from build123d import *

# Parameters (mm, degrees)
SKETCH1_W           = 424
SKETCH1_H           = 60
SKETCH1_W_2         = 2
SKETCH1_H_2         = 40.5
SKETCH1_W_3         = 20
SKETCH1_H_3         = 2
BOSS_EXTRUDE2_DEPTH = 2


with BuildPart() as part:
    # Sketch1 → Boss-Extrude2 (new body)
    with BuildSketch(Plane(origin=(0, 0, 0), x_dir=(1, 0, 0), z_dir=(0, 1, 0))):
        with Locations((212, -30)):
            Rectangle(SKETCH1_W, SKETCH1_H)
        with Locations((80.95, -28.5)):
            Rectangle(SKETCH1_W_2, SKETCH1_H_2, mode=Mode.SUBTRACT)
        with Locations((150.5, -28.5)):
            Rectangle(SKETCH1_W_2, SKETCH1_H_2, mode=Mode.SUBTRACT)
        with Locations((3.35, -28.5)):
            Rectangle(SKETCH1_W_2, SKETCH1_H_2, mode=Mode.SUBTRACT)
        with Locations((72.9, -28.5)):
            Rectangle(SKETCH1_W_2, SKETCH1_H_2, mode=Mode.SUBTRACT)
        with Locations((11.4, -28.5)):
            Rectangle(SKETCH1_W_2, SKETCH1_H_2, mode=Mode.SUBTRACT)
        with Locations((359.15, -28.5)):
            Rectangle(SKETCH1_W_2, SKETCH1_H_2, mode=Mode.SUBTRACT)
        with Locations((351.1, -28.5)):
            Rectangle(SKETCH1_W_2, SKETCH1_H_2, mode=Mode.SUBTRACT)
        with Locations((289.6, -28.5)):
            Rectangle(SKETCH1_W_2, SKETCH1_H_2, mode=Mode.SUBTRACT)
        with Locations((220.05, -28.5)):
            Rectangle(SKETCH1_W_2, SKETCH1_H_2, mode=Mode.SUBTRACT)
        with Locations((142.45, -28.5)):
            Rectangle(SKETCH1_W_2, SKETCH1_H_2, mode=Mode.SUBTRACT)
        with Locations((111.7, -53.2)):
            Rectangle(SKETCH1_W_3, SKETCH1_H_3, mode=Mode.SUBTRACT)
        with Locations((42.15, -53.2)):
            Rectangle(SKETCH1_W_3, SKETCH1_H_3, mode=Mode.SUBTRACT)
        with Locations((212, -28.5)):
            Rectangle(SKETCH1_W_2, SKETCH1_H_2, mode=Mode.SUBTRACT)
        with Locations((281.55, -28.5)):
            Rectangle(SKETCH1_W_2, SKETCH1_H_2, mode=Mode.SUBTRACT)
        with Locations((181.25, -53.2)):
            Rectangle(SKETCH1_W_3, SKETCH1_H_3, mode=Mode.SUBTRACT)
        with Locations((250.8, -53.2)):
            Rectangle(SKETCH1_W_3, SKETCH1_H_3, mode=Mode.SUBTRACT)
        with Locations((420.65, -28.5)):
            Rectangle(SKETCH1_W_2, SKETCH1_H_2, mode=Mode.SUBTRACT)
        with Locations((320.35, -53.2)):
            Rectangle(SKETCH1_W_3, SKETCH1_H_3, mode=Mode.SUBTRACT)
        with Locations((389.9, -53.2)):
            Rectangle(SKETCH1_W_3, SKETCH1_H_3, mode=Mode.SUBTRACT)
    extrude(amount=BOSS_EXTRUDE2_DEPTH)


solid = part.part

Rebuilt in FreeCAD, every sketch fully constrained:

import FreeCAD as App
import Part
import Sketcher

V = App.Vector


def add_polygon(sketch, points):
    """Adds a closed chain of lines whose ends are joined by coincident constraints."""
    first, n = sketch.GeometryCount, len(points)
    for a, b in zip(points, points[1:] + points[:1]):
        sketch.addGeometry(Part.LineSegment(App.Vector(*a, 0), App.Vector(*b, 0)), False)
    for i in range(n):
        sketch.addConstraint(Sketcher.Constraint("Coincident", first + i, 2, first + (i + 1) % n, 1))

doc = App.newDocument("Part")
body = doc.addObject("PartDesign::Body", "Body")

# Sketch on XZ plane
sketch1 = body.newObject("Sketcher::SketchObject", "Sketch")
sketch1.AttachmentSupport = (doc.getObject("XZ_Plane"), [""])
sketch1.MapMode = "FlatFace"
add_polygon(sketch1, [(0, 0), (0, 60), (424, 60), (424, 0)])  # lines 0-3
add_polygon(sketch1, [(52.1, 54.2), (32.1, 54.2), (32.1, 52.2), (52.1, 52.2)])  # lines 4-7
add_polygon(sketch1, [(121.7, 54.2), (101.7, 54.2), (101.7, 52.2), (121.7, 52.2)])  # lines 8-11
add_polygon(sketch1, [(191.2, 54.2), (171.2, 54.2), (171.2, 52.2), (191.2, 52.2)])  # lines 12-15
add_polygon(sketch1, [(260.8, 54.2), (240.8, 54.2), (240.8, 52.2), (260.8, 52.2)])  # lines 16-19
add_polygon(sketch1, [(330.4, 54.2), (310.4, 54.2), (310.4, 52.2), (330.4, 52.2)])  # lines 20-23
add_polygon(sketch1, [(399.9, 54.2), (379.9, 54.2), (379.9, 52.2), (399.9, 52.2)])  # lines 24-27
add_polygon(sketch1, [(4.3, 48.8), (2.4, 48.8), (2.4, 8.2), (4.3, 8.2)])  # lines 28-31
add_polygon(sketch1, [(12.4, 48.8), (10.4, 48.8), (10.4, 8.2), (12.4, 8.2)])  # lines 32-35
add_polygon(sketch1, [(73.9, 48.8), (71.9, 48.8), (71.9, 8.2), (73.9, 8.2)])  # lines 36-39
add_polygon(sketch1, [(82, 48.8), (80, 48.8), (80, 8.2), (82, 8.2)])  # lines 40-43
add_polygon(sketch1, [(143.4, 48.8), (141.4, 48.8), (141.4, 8.2), (143.4, 8.2)])  # lines 44-47
add_polygon(sketch1, [(151.5, 48.8), (149.5, 48.8), (149.5, 8.2), (151.5, 8.2)])  # lines 48-51
add_polygon(sketch1, [(213, 48.8), (211, 48.8), (211, 8.2), (213, 8.2)])  # lines 52-55
add_polygon(sketch1, [(221.1, 48.8), (219.1, 48.8), (219.1, 8.2), (221.1, 8.2)])  # lines 56-59
add_polygon(sketch1, [(282.6, 48.8), (280.6, 48.8), (280.6, 8.2), (282.6, 8.2)])  # lines 60-63
add_polygon(sketch1, [(290.6, 48.8), (288.6, 48.8), (288.6, 8.2), (290.6, 8.2)])  # lines 64-67
add_polygon(sketch1, [(352.1, 48.8), (350.1, 48.8), (350.1, 8.2), (352.1, 8.2)])  # lines 68-71
add_polygon(sketch1, [(360.1, 48.8), (358.1, 48.8), (358.1, 8.2), (360.1, 8.2)])  # lines 72-75
add_polygon(sketch1, [(421.6, 48.8), (419.6, 48.8), (419.6, 8.2), (421.6, 8.2)])  # lines 76-79
sketch1.addConstraint(Sketcher.Constraint("Vertical", 0))
sketch1.addConstraint(Sketcher.Constraint("Horizontal", 1))
sketch1.addConstraint(Sketcher.Constraint("Vertical", 2))
sketch1.addConstraint(Sketcher.Constraint("Horizontal", 3))
sketch1.addConstraint(Sketcher.Constraint("Horizontal", 4))
sketch1.addConstraint(Sketcher.Constraint("Vertical", 5))
sketch1.addConstraint(Sketcher.Constraint("Horizontal", 6))
sketch1.addConstraint(Sketcher.Constraint("Vertical", 7))
sketch1.addConstraint(Sketcher.Constraint("Horizontal", 8))
sketch1.addConstraint(Sketcher.Constraint("Vertical", 9))
sketch1.addConstraint(Sketcher.Constraint("Horizontal", 10))
sketch1.addConstraint(Sketcher.Constraint("Vertical", 11))
sketch1.addConstraint(Sketcher.Constraint("Horizontal", 12))
sketch1.addConstraint(Sketcher.Constraint("Vertical", 13))
sketch1.addConstraint(Sketcher.Constraint("Horizontal", 14))
sketch1.addConstraint(Sketcher.Constraint("Vertical", 15))
sketch1.addConstraint(Sketcher.Constraint("Horizontal", 16))
sketch1.addConstraint(Sketcher.Constraint("Vertical", 17))
sketch1.addConstraint(Sketcher.Constraint("Horizontal", 18))
sketch1.addConstraint(Sketcher.Constraint("Vertical", 19))
sketch1.addConstraint(Sketcher.Constraint("Horizontal", 20))
sketch1.addConstraint(Sketcher.Constraint("Vertical", 21))
sketch1.addConstraint(Sketcher.Constraint("Horizontal", 22))
sketch1.addConstraint(Sketcher.Constraint("Vertical", 23))
sketch1.addConstraint(Sketcher.Constraint("Horizontal", 24))
sketch1.addConstraint(Sketcher.Constraint("Vertical", 25))
sketch1.addConstraint(Sketcher.Constraint("Horizontal", 26))
sketch1.addConstraint(Sketcher.Constraint("Vertical", 27))
sketch1.addConstraint(Sketcher.Constraint("Horizontal", 28))
sketch1.addConstraint(Sketcher.Constraint("Vertical", 29))
sketch1.addConstraint(Sketcher.Constraint("Horizontal", 30))
sketch1.addConstraint(Sketcher.Constraint("Vertical", 31))
sketch1.addConstraint(Sketcher.Constraint("Horizontal", 32))
sketch1.addConstraint(Sketcher.Constraint("Vertical", 33))
sketch1.addConstraint(Sketcher.Constraint("Horizontal", 34))
sketch1.addConstraint(Sketcher.Constraint("Vertical", 35))
sketch1.addConstraint(Sketcher.Constraint("Horizontal", 36))
sketch1.addConstraint(Sketcher.Constraint("Vertical", 37))
sketch1.addConstraint(Sketcher.Constraint("Horizontal", 38))
sketch1.addConstraint(Sketcher.Constraint("Vertical", 39))
sketch1.addConstraint(Sketcher.Constraint("Horizontal", 40))
sketch1.addConstraint(Sketcher.Constraint("Vertical", 41))
sketch1.addConstraint(Sketcher.Constraint("Horizontal", 42))
sketch1.addConstraint(Sketcher.Constraint("Vertical", 43))
sketch1.addConstraint(Sketcher.Constraint("Horizontal", 44))
sketch1.addConstraint(Sketcher.Constraint("Vertical", 45))
sketch1.addConstraint(Sketcher.Constraint("Horizontal", 46))
sketch1.addConstraint(Sketcher.Constraint("Vertical", 47))
sketch1.addConstraint(Sketcher.Constraint("Horizontal", 48))
sketch1.addConstraint(Sketcher.Constraint("Vertical", 49))
sketch1.addConstraint(Sketcher.Constraint("Horizontal", 50))
sketch1.addConstraint(Sketcher.Constraint("Vertical", 51))
sketch1.addConstraint(Sketcher.Constraint("Horizontal", 52))
sketch1.addConstraint(Sketcher.Constraint("Vertical", 53))
sketch1.addConstraint(Sketcher.Constraint("Horizontal", 54))
sketch1.addConstraint(Sketcher.Constraint("Vertical", 55))
sketch1.addConstraint(Sketcher.Constraint("Horizontal", 56))
sketch1.addConstraint(Sketcher.Constraint("Vertical", 57))
sketch1.addConstraint(Sketcher.Constraint("Horizontal", 58))
sketch1.addConstraint(Sketcher.Constraint("Vertical", 59))
sketch1.addConstraint(Sketcher.Constraint("Horizontal", 60))
sketch1.addConstraint(Sketcher.Constraint("Vertical", 61))
sketch1.addConstraint(Sketcher.Constraint("Horizontal", 62))
sketch1.addConstraint(Sketcher.Constraint("Vertical", 63))
sketch1.addConstraint(Sketcher.Constraint("Horizontal", 64))
sketch1.addConstraint(Sketcher.Constraint("Vertical", 65))
sketch1.addConstraint(Sketcher.Constraint("Horizontal", 66))
sketch1.addConstraint(Sketcher.Constraint("Vertical", 67))
sketch1.addConstraint(Sketcher.Constraint("Horizontal", 68))
sketch1.addConstraint(Sketcher.Constraint("Vertical", 69))
sketch1.addConstraint(Sketcher.Constraint("Horizontal", 70))
sketch1.addConstraint(Sketcher.Constraint("Vertical", 71))
sketch1.addConstraint(Sketcher.Constraint("Horizontal", 72))
sketch1.addConstraint(Sketcher.Constraint("Vertical", 73))
sketch1.addConstraint(Sketcher.Constraint("Horizontal", 74))
sketch1.addConstraint(Sketcher.Constraint("Vertical", 75))
sketch1.addConstraint(Sketcher.Constraint("Horizontal", 76))
sketch1.addConstraint(Sketcher.Constraint("Vertical", 77))
sketch1.addConstraint(Sketcher.Constraint("Horizontal", 78))
sketch1.addConstraint(Sketcher.Constraint("Vertical", 79))
sketch1.addConstraint(Sketcher.Constraint("Coincident", 3, 2, -1, 1))
sketch1.addConstraint(Sketcher.Constraint("Horizontal", 7, 2, 8, 2))
sketch1.addConstraint(Sketcher.Constraint("Horizontal", 6, 2, 9, 2))
sketch1.addConstraint(Sketcher.Constraint("Horizontal", 11, 2, 12, 2))
sketch1.addConstraint(Sketcher.Constraint("Horizontal", 10, 2, 13, 2))
sketch1.addConstraint(Sketcher.Constraint("Horizontal", 15, 2, 16, 2))
sketch1.addConstraint(Sketcher.Constraint("Horizontal", 14, 2, 17, 2))
sketch1.addConstraint(Sketcher.Constraint("Horizontal", 19, 2, 20, 2))
sketch1.addConstraint(Sketcher.Constraint("Horizontal", 18, 2, 21, 2))
sketch1.addConstraint(Sketcher.Constraint("Horizontal", 23, 2, 24, 2))
sketch1.addConstraint(Sketcher.Constraint("Horizontal", 22, 2, 25, 2))
sketch1.addConstraint(Sketcher.Constraint("Horizontal", 31, 2, 32, 2))
sketch1.addConstraint(Sketcher.Constraint("Horizontal", 30, 2, 33, 2))
sketch1.addConstraint(Sketcher.Constraint("Horizontal", 35, 2, 36, 2))
sketch1.addConstraint(Sketcher.Constraint("Horizontal", 34, 2, 37, 2))
sketch1.addConstraint(Sketcher.Constraint("Horizontal", 39, 2, 40, 2))
sketch1.addConstraint(Sketcher.Constraint("Horizontal", 38, 2, 41, 2))
sketch1.addConstraint(Sketcher.Constraint("Horizontal", 43, 2, 44, 2))
sketch1.addConstraint(Sketcher.Constraint("Horizontal", 42, 2, 45, 2))
sketch1.addConstraint(Sketcher.Constraint("Horizontal", 47, 2, 48, 2))
sketch1.addConstraint(Sketcher.Constraint("Horizontal", 46, 2, 49, 2))
sketch1.addConstraint(Sketcher.Constraint("Horizontal", 51, 2, 52, 2))
sketch1.addConstraint(Sketcher.Constraint("Horizontal", 50, 2, 53, 2))
sketch1.addConstraint(Sketcher.Constraint("Horizontal", 55, 2, 56, 2))
sketch1.addConstraint(Sketcher.Constraint("Horizontal", 54, 2, 57, 2))
sketch1.addConstraint(Sketcher.Constraint("Horizontal", 59, 2, 60, 2))
sketch1.addConstraint(Sketcher.Constraint("Horizontal", 58, 2, 61, 2))
sketch1.addConstraint(Sketcher.Constraint("Horizontal", 63, 2, 64, 2))
sketch1.addConstraint(Sketcher.Constraint("Horizontal", 62, 2, 65, 2))
sketch1.addConstraint(Sketcher.Constraint("Horizontal", 67, 2, 68, 2))
sketch1.addConstraint(Sketcher.Constraint("Horizontal", 66, 2, 69, 2))
sketch1.addConstraint(Sketcher.Constraint("Horizontal", 71, 2, 72, 2))
sketch1.addConstraint(Sketcher.Constraint("Horizontal", 70, 2, 73, 2))
sketch1.addConstraint(Sketcher.Constraint("Horizontal", 75, 2, 76, 2))
sketch1.addConstraint(Sketcher.Constraint("Horizontal", 74, 2, 77, 2))
sketch1.addConstraint(Sketcher.Constraint("Equal", 6, 8))
sketch1.addConstraint(Sketcher.Constraint("Equal", 10, 12))
sketch1.addConstraint(Sketcher.Constraint("Equal", 14, 16))
sketch1.addConstraint(Sketcher.Constraint("Equal", 18, 20))
sketch1.addConstraint(Sketcher.Constraint("Equal", 22, 24))
sketch1.addConstraint(Sketcher.Constraint("Equal", 30, 32))
sketch1.addConstraint(Sketcher.Constraint("Equal", 34, 36))
sketch1.addConstraint(Sketcher.Constraint("Equal", 38, 40))
sketch1.addConstraint(Sketcher.Constraint("Equal", 42, 44))
sketch1.addConstraint(Sketcher.Constraint("Equal", 46, 48))
sketch1.addConstraint(Sketcher.Constraint("Equal", 50, 52))
sketch1.addConstraint(Sketcher.Constraint("Equal", 54, 56))
sketch1.addConstraint(Sketcher.Constraint("Equal", 58, 60))
sketch1.addConstraint(Sketcher.Constraint("Equal", 62, 64))
sketch1.addConstraint(Sketcher.Constraint("Equal", 66, 68))
sketch1.addConstraint(Sketcher.Constraint("Equal", 70, 72))
sketch1.addConstraint(Sketcher.Constraint("Equal", 74, 76))
sketch1.addConstraint(Sketcher.Constraint("Equal", 78, 5))
sketch1.addConstraint(Sketcher.Constraint("DistanceX", 1, 1, 1, 2, 424.0))
sketch1.addConstraint(Sketcher.Constraint("DistanceX", 4, 2, 4, 1, 20.0))
sketch1.addConstraint(Sketcher.Constraint("DistanceX", 28, 2, 28, 1, 2.0))
sketch1.addConstraint(Sketcher.Constraint("DistanceY", 0, 1, 0, 2, 60.0))
sketch1.addConstraint(Sketcher.Constraint("DistanceY", 29, 2, 29, 1, 40.5))
sketch1.addConstraint(Sketcher.Constraint("DistanceX", -1, 1, 52, 2, 211.0))
sketch1.addConstraint(Sketcher.Constraint("DistanceY", -1, 1, 4, 2, 54.2))
sketch1.addConstraint(Sketcher.Constraint("DistanceX", -1, 1, 8, 2, 101.7))
sketch1.addConstraint(Sketcher.Constraint("DistanceX", -1, 1, 16, 2, 240.8))
sketch1.addConstraint(Sketcher.Constraint("DistanceX", -1, 1, 24, 2, 379.9))
sketch1.addConstraint(Sketcher.Constraint("DistanceX", -1, 1, 32, 2, 10.4))
sketch1.addConstraint(Sketcher.Constraint("DistanceX", -1, 1, 36, 2, 71.9))
sketch1.addConstraint(Sketcher.Constraint("DistanceX", -1, 1, 48, 2, 149.5))
sketch1.addConstraint(Sketcher.Constraint("DistanceX", -1, 1, 64, 2, 288.6))
sketch1.addConstraint(Sketcher.Constraint("DistanceX", -1, 1, 68, 2, 350.1))
sketch1.addConstraint(Sketcher.Constraint("DistanceX", -1, 1, 4, 2, 32.15))
sketch1.addConstraint(Sketcher.Constraint("DistanceX", -1, 1, 12, 2, 171.25))
sketch1.addConstraint(Sketcher.Constraint("DistanceX", -1, 1, 20, 2, 310.35))
sketch1.addConstraint(Sketcher.Constraint("DistanceX", -1, 1, 28, 2, 2.35))
sketch1.addConstraint(Sketcher.Constraint("DistanceY", -1, 1, 28, 2, 48.75))
sketch1.addConstraint(Sketcher.Constraint("DistanceX", -1, 1, 40, 2, 79.95))
sketch1.addConstraint(Sketcher.Constraint("DistanceX", -1, 1, 44, 2, 141.45))
sketch1.addConstraint(Sketcher.Constraint("DistanceX", -1, 1, 56, 2, 219.05))
sketch1.addConstraint(Sketcher.Constraint("DistanceX", -1, 1, 60, 2, 280.55))
sketch1.addConstraint(Sketcher.Constraint("DistanceX", -1, 1, 72, 2, 358.15))
sketch1.addConstraint(Sketcher.Constraint("DistanceX", -1, 1, 76, 2, 419.65))
pad1 = body.newObject("PartDesign::Pad", "Pad")
pad1.Profile = sketch1
pad1.Length = 2
pad1.Reversed = True

doc.recompute()
